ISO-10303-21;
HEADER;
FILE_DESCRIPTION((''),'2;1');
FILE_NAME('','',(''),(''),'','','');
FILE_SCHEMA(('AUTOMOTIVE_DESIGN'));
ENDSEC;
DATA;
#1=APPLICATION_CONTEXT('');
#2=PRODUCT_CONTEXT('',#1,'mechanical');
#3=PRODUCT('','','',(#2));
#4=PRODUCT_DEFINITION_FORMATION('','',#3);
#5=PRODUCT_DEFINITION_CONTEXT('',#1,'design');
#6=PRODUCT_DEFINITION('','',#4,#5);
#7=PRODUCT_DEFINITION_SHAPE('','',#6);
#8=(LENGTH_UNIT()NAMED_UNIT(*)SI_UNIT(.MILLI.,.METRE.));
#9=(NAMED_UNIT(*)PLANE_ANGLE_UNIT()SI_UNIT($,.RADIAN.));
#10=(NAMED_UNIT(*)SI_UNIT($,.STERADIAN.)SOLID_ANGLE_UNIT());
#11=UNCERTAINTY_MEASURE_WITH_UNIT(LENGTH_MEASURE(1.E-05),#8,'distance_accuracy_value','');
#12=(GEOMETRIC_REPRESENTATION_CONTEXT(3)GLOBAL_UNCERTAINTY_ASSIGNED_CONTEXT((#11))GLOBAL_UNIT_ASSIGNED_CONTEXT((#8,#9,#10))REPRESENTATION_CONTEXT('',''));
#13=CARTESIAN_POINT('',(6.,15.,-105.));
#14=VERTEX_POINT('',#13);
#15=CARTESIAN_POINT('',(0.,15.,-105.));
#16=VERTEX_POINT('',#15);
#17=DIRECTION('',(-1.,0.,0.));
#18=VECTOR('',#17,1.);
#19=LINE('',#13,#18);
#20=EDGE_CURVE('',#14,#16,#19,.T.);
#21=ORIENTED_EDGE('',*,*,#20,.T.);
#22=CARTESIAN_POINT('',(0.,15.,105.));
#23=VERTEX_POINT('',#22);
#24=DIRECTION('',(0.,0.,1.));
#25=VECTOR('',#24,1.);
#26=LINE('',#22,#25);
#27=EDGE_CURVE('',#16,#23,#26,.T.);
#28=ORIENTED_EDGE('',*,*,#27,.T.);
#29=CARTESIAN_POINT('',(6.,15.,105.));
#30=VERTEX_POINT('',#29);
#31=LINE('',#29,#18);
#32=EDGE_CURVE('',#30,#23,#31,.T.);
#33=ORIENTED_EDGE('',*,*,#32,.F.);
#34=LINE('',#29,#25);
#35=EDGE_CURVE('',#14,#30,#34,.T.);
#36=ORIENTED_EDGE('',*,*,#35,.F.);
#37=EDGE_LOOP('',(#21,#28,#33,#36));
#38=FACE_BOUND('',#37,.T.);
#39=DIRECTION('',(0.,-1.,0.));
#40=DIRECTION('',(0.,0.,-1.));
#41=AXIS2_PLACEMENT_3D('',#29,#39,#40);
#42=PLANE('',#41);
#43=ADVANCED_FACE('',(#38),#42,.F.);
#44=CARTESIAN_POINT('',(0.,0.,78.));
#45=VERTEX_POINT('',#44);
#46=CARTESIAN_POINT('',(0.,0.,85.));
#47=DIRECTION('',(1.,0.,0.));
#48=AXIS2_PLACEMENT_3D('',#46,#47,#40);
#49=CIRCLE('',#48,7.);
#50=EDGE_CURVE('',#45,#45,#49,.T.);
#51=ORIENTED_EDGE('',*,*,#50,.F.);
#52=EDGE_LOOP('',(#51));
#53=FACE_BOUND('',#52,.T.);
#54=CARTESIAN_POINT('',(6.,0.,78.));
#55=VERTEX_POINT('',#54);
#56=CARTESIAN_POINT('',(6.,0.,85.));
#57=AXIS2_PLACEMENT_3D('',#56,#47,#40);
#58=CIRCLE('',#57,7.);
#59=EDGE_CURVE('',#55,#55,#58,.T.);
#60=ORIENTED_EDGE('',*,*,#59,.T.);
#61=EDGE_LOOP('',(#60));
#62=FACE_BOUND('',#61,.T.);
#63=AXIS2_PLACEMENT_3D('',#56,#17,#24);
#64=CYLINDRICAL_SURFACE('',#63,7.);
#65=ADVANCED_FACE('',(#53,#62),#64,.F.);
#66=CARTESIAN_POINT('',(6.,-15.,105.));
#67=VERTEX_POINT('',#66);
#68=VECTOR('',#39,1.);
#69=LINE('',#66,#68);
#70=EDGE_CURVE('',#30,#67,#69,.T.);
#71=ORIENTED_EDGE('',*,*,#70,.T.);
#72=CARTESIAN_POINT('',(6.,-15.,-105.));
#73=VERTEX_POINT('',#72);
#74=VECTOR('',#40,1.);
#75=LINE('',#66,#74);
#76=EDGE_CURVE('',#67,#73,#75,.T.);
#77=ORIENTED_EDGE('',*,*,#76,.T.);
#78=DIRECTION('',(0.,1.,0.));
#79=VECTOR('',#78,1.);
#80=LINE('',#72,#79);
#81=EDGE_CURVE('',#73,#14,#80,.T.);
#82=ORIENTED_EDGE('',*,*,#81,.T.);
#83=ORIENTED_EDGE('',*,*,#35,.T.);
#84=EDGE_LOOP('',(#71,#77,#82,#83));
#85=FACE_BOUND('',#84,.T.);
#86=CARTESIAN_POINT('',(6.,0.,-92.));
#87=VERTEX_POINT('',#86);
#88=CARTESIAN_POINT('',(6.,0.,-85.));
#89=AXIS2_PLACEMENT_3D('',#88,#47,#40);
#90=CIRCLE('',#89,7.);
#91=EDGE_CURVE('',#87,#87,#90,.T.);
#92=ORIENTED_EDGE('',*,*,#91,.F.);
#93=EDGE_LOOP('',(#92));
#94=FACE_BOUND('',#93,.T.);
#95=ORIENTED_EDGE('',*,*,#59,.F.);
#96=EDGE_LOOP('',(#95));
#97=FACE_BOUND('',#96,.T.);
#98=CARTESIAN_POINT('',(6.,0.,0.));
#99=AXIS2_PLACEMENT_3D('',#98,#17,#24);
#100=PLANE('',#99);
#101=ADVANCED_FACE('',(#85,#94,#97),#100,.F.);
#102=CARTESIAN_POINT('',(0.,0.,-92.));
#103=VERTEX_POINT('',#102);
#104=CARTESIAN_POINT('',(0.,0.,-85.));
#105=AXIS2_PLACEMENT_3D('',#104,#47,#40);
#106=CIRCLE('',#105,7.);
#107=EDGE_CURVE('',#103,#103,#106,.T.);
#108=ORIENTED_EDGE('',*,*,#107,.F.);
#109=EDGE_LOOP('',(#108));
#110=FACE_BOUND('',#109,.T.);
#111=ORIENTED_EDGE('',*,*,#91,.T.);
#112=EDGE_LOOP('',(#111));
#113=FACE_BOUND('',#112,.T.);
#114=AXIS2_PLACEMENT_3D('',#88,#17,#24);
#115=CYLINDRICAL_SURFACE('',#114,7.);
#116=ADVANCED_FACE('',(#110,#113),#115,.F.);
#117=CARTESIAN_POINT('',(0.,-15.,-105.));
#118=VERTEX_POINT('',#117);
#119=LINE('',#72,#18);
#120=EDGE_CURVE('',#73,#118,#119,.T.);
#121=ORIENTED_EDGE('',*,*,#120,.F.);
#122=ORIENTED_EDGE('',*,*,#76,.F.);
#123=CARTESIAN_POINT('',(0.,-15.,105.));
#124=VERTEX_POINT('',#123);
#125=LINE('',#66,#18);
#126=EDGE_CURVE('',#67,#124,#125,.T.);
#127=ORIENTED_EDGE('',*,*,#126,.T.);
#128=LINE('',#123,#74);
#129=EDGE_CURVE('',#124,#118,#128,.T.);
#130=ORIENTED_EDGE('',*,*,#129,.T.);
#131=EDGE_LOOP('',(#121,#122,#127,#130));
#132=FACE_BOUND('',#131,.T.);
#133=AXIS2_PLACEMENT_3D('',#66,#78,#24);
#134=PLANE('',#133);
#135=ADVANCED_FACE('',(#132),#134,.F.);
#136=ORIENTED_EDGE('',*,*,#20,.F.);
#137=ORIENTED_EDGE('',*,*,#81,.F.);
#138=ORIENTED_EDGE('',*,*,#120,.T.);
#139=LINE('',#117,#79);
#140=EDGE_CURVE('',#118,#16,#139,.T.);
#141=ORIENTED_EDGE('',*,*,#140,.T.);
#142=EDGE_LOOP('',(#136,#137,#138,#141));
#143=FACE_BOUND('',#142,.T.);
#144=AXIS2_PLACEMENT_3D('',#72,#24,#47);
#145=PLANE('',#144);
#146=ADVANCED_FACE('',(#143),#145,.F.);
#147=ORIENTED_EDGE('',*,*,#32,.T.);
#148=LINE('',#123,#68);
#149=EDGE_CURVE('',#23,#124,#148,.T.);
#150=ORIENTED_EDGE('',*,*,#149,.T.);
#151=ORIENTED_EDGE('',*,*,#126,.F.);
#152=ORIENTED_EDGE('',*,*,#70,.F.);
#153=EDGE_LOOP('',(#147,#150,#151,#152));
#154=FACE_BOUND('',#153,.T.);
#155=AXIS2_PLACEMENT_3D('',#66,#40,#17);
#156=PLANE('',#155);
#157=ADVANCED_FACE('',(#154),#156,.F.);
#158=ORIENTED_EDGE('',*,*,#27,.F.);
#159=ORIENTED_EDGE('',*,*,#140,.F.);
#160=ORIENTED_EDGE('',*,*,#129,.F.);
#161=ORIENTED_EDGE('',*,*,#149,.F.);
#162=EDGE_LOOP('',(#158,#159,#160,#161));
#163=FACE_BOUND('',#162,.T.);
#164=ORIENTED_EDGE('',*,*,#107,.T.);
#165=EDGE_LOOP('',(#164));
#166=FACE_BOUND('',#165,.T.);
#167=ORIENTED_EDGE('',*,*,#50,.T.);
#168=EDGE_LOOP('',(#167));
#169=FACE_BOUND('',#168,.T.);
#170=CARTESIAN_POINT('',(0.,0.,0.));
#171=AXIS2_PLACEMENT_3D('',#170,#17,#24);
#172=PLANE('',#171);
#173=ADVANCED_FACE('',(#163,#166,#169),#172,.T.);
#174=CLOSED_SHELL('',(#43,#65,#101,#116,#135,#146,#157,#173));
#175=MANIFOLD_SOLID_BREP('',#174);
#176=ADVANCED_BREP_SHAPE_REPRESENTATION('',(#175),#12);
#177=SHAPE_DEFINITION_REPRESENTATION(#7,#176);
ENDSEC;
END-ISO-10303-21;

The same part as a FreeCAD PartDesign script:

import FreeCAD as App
import Part
import Sketcher

V = App.Vector
Q = App.Units.Quantity

doc = App.newDocument("Part")
body = doc.addObject("PartDesign::Body", "Body")

sketch1 = body.newObject("Sketcher::SketchObject", "Sketch")
sketch1.AttachmentSupport = (doc.getObject("YZ_Plane"), [""])
sketch1.MapMode = "FlatFace"
sketch1.addGeometry(Part.LineSegment(V(15, 105, 0), V(-15, 105, 0)), False)
sketch1.addGeometry(Part.LineSegment(V(-15, 105, 0), V(-15, -105, 0)), False)
sketch1.addGeometry(Part.LineSegment(V(-15, -105, 0), V(15, -105, 0)), False)
sketch1.addGeometry(Part.LineSegment(V(15, -105, 0), V(15, 105, 0)), False)
sketch1.addGeometry(Part.Circle(V(0, 85, 0), V(0, 0, 1), 7), False)
sketch1.addGeometry(Part.Circle(V(0, -85, 0), V(0, 0, 1), 7), False)
sketch1.addConstraint(Sketcher.Constraint("Coincident", 0, 2, 1, 1))
sketch1.addConstraint(Sketcher.Constraint("Coincident", 1, 2, 2, 1))
sketch1.addConstraint(Sketcher.Constraint("Coincident", 2, 2, 3, 1))
sketch1.addConstraint(Sketcher.Constraint("Coincident", 3, 2, 0, 1))
sketch1.addConstraint(Sketcher.Constraint("Horizontal", 0))
sketch1.addConstraint(Sketcher.Constraint("Vertical", 1))
sketch1.addConstraint(Sketcher.Constraint("Horizontal", 2))
sketch1.addConstraint(Sketcher.Constraint("Vertical", 3))
sketch1.addConstraint(Sketcher.Constraint("Equal", 4, 5))
sketch1.addConstraint(Sketcher.Constraint("Symmetric", 4, 3, 5, 3, -1, 1))
sketch1.addConstraint(Sketcher.Constraint("Symmetric", 0, 2, 2, 2, -1, 1))
sketch1.addConstraint(Sketcher.Constraint("PointOnObject", 4, 3, -2))
sketch1.addConstraint(Sketcher.Constraint("Diameter", 4, Q("14 mm")))
sketch1.addConstraint(Sketcher.Constraint("DistanceX", 0, 2, 0, 1, Q("30 mm")))
sketch1.addConstraint(Sketcher.Constraint("DistanceY", 1, 2, 1, 1, Q("210 mm")))
sketch1.addConstraint(Sketcher.Constraint("DistanceY", -1, 1, 4, 3, Q("85 mm")))
pad1 = body.newObject("PartDesign::Pad", "Pad")
pad1.Profile = sketch1
pad1.Length = 6

doc.recompute()
